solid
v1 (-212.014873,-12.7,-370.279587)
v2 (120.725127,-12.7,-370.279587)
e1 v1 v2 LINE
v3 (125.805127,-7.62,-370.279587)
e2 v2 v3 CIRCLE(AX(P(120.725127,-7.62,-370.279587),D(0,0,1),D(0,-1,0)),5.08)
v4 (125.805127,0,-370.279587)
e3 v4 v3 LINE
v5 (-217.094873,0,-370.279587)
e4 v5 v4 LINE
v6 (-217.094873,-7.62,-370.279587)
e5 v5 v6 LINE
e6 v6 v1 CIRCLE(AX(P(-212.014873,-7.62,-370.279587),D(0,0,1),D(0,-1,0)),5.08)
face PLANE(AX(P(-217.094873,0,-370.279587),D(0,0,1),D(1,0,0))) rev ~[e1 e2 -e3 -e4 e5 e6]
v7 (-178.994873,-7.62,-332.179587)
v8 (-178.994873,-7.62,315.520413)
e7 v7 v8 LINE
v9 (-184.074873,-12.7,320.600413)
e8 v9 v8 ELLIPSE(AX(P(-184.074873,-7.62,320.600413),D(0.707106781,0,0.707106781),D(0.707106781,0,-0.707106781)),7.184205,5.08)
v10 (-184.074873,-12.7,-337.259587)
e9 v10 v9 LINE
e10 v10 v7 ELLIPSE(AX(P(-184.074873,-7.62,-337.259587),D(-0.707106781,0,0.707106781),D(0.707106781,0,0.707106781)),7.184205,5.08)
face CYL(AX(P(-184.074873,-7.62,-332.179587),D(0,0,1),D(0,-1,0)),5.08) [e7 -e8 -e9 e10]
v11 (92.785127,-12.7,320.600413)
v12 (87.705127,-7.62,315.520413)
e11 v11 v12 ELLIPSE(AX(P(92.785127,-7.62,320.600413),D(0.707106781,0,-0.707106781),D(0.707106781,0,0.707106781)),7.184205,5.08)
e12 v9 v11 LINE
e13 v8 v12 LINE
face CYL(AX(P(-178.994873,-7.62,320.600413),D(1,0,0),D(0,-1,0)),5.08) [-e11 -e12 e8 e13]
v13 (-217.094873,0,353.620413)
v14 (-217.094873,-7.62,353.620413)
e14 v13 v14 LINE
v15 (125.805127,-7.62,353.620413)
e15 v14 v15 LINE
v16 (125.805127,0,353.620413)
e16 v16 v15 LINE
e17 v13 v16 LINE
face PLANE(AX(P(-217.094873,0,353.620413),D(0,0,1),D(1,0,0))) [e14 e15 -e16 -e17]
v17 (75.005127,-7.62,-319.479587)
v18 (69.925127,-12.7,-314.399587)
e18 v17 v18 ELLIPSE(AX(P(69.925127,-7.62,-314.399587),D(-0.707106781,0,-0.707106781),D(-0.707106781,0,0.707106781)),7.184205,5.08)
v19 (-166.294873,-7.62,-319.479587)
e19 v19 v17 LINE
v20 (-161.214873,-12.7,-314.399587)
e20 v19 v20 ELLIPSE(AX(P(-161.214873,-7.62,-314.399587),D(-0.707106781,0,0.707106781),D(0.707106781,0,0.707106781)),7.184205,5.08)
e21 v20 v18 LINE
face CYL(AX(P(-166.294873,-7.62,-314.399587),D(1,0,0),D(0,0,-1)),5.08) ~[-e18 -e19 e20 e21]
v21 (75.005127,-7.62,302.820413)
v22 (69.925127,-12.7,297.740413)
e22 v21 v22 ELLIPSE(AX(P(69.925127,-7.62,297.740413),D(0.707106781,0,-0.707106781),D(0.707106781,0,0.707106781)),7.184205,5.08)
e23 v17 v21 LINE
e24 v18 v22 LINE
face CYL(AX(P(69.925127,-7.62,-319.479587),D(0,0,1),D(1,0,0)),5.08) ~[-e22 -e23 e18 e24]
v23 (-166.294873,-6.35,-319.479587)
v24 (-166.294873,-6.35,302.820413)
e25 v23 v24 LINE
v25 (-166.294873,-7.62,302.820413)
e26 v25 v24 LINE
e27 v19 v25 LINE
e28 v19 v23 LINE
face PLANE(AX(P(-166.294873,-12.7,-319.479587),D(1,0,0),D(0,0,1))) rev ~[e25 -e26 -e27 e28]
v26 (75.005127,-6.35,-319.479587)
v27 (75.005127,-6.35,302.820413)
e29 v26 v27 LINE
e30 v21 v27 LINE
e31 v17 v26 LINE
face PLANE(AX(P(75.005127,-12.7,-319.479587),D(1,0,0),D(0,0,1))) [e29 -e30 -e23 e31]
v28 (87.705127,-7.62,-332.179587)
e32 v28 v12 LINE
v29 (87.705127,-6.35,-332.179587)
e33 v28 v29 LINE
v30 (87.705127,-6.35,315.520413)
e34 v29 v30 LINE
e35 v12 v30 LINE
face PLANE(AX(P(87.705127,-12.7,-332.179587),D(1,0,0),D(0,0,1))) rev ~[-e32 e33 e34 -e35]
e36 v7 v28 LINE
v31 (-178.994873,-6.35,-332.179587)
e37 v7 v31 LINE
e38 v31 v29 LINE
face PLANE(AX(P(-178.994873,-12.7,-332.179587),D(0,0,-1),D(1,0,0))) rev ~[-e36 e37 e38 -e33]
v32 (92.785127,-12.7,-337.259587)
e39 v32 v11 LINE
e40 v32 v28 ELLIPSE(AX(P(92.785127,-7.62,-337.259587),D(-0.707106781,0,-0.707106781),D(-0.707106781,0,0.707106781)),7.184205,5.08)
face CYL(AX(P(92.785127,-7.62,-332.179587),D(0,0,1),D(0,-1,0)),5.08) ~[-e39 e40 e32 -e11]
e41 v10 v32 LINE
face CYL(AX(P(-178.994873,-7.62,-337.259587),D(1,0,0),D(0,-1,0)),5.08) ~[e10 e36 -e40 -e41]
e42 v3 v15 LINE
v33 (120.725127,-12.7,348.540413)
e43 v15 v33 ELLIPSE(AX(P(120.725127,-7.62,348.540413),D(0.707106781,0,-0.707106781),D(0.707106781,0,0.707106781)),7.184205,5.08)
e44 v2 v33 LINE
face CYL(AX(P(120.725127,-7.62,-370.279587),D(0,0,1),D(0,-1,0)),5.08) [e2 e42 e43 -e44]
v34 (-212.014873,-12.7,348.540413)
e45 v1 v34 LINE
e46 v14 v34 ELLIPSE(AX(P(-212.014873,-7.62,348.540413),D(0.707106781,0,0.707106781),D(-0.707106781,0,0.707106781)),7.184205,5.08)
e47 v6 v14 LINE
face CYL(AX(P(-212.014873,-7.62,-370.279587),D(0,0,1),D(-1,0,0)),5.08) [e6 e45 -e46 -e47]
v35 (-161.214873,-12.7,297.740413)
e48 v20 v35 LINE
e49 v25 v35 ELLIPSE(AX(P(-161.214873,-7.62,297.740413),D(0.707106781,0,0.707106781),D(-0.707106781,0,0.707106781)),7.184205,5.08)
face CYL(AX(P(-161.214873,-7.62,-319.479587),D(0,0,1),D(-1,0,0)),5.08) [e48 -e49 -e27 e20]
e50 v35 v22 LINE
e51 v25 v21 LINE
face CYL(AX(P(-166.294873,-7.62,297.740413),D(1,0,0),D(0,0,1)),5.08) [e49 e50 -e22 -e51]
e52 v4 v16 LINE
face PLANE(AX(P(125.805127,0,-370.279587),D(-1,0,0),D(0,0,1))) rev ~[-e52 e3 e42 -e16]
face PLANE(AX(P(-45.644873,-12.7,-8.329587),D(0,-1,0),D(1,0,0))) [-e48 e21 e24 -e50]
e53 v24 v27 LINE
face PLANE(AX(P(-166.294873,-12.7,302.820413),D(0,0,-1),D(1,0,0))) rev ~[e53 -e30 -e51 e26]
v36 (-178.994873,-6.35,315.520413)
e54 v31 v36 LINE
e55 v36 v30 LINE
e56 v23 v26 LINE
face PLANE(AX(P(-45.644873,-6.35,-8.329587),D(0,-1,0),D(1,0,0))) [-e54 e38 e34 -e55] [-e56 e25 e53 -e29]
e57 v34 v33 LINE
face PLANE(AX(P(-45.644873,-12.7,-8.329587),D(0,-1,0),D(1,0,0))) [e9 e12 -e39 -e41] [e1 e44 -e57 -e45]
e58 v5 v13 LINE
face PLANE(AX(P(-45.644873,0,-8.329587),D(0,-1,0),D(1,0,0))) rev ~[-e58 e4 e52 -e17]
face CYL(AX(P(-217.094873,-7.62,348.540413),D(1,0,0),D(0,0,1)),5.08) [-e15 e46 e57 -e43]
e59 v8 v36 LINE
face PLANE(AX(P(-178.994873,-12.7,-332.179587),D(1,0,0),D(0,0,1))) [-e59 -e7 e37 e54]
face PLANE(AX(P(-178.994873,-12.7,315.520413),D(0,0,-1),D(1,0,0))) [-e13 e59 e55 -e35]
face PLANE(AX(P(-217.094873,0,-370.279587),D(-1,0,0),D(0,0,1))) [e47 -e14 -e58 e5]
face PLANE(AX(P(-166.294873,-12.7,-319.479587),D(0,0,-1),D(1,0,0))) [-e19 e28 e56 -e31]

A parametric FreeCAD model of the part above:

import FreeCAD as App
import Part
import Sketcher
Q = App.Units.Quantity


def edges_at(feature, points):
    """Names of the edges that pass closest to the given points."""
    edges = feature.Shape.Edges
    near = lambda p: min(range(len(edges)), key=lambda i: edges[i].distToShape(Part.Vertex(*p))[0])
    return sorted({f"Edge{near(p) + 1}" for p in points})

doc = App.newDocument("Part")
body = doc.addObject("PartDesign::Body", "Body")

sketch1 = body.newObject("Sketcher::SketchObject", "Sketch")
sketch1.AttachmentSupport = (doc.getObject("XZ_Plane"), [""])
sketch1.MapMode = "FlatFace"
sketch1.addGeometry([
    Part.LineSegment(App.Vector(-217, 354, 0), App.Vector(-217, -370, 0)),
    Part.LineSegment(App.Vector(-217, -370, 0), App.Vector(126, -370, 0)),
    Part.LineSegment(App.Vector(126, -370, 0), App.Vector(126, 354, 0)),
    Part.LineSegment(App.Vector(126, 354, 0), App.Vector(-217, 354, 0)),
], False)
sketch1.addConstraint([
    Sketcher.Constraint("Coincident", 0, 2, 1, 1),
    Sketcher.Constraint("Coincident", 1, 2, 2, 1),
    Sketcher.Constraint("Coincident", 2, 2, 3, 1),
    Sketcher.Constraint("Coincident", 3, 2, 0, 1),
    Sketcher.Constraint("Vertical", 0),
    Sketcher.Constraint("Horizontal", 1),
    Sketcher.Constraint("Vertical", 2),
    Sketcher.Constraint("Horizontal", 3),
    Sketcher.Constraint("DistanceX", 1, 1, 1, 2, Q("13.5 in")),
    Sketcher.Constraint("DistanceY", 0, 2, 0, 1, Q("28.5 in")),
    Sketcher.Constraint("DistanceX", 0, 2, -1, 1, Q("217.094873 mm")),
    Sketcher.Constraint("DistanceY", 0, 2, -1, 1, Q("370.279587 mm")),
])
pad1 = body.newObject("PartDesign::Pad", "Pad")
pad1.Profile = sketch1
pad1.Length = Q("0.5 in")

sketch2 = body.newObject("Sketcher::SketchObject", "Sketch001")
sketch2.AttachmentSupport = (doc.getObject("XZ_Plane"), [""])
sketch2.MapMode = "FlatFace"
sketch2.AttachmentOffset = App.Placement(App.Vector(0, 0, 0.5 * 25.4), App.Rotation())
sketch2.addGeometry([
    Part.LineSegment(App.Vector(-179, 316, 0), App.Vector(-179, -332, 0)),
    Part.LineSegment(App.Vector(-179, -332, 0), App.Vector(88, -332, 0)),
    Part.LineSegment(App.Vector(88, -332, 0), App.Vector(88, 316, 0)),
    Part.LineSegment(App.Vector(88, 316, 0), App.Vector(-179, 316, 0)),
    Part.LineSegment(App.Vector(75, -319, 0), App.Vector(-166, -319, 0)),
    Part.LineSegment(App.Vector(-166, -319, 0), App.Vector(-166, 303, 0)),
    Part.LineSegment(App.Vector(-166, 303, 0), App.Vector(75, 303, 0)),
    Part.LineSegment(App.Vector(75, 303, 0), App.Vector(75, -319, 0)),
], False)
sketch2.addConstraint([
    Sketcher.Constraint("Coincident", 0, 2, 1, 1),
    Sketcher.Constraint("Coincident", 1, 2, 2, 1),
    Sketcher.Constraint("Coincident", 2, 2, 3, 1),
    Sketcher.Constraint("Coincident", 3, 2, 0, 1),
    Sketcher.Constraint("Coincident", 4, 2, 5, 1),
    Sketcher.Constraint("Coincident", 5, 2, 6, 1),
    Sketcher.Constraint("Coincident", 6, 2, 7, 1),
    Sketcher.Constraint("Coincident", 7, 2, 4, 1),
    Sketcher.Constraint("Vertical", 0),
    Sketcher.Constraint("Horizontal", 1),
    Sketcher.Constraint("Vertical", 2),
    Sketcher.Constraint("Horizontal", 3),
    Sketcher.Constraint("Horizontal", 4),
    Sketcher.Constraint("Vertical", 5),
    Sketcher.Constraint("Horizontal", 6),
    Sketcher.Constraint("Vertical", 7),
    Sketcher.Constraint("DistanceX", 1, 1, 1, 2, Q("10.5 in")),
    Sketcher.Constraint("DistanceX", 4, 2, 4, 1, Q("9.5 in")),
    Sketcher.Constraint("DistanceY", 0, 2, 0, 1, Q("25.5 in")),
    Sketcher.Constraint("DistanceY", 5, 1, 5, 2, Q("24.5 in")),
    Sketcher.Constraint("DistanceX", 4, 2, 1, 2, Q("10 in")),
    Sketcher.Constraint("DistanceY", 4, 2, 3, 2, Q("25 in")),
    Sketcher.Constraint("DistanceX", 0, 2, -1, 1, Q("178.994873 mm")),
    Sketcher.Constraint("DistanceY", 0, 2, -1, 1, Q("332.179587 mm")),
])
pocket1 = body.newObject("PartDesign::Pocket", "Pocket")
pocket1.Profile = sketch2
pocket1.Length = Q("0.25 in")
doc.recompute()

fillet = body.newObject("PartDesign::Fillet", "Fillet")
fillet.Base = (pocket1, edges_at(pocket1, [
    (-217.095, -12.7, -8.33),
    (-45.645, -12.7, 353.62),
    (125.805, -12.7, -8.33),
    (87.705, -12.7, -8.33),
    (-45.645, -12.7, 315.52),
    (-178.995, -12.7, -8.33),
    (-166.295, -12.7, -8.33),
    (-45.645, -12.7, 302.82),
    (75.005, -12.7, -8.33),
    (-45.645, -12.7, -319.48),
    (-45.645, -12.7, -332.18),
]))
fillet.Radius = Q("0.2 in")

doc.recompute()
